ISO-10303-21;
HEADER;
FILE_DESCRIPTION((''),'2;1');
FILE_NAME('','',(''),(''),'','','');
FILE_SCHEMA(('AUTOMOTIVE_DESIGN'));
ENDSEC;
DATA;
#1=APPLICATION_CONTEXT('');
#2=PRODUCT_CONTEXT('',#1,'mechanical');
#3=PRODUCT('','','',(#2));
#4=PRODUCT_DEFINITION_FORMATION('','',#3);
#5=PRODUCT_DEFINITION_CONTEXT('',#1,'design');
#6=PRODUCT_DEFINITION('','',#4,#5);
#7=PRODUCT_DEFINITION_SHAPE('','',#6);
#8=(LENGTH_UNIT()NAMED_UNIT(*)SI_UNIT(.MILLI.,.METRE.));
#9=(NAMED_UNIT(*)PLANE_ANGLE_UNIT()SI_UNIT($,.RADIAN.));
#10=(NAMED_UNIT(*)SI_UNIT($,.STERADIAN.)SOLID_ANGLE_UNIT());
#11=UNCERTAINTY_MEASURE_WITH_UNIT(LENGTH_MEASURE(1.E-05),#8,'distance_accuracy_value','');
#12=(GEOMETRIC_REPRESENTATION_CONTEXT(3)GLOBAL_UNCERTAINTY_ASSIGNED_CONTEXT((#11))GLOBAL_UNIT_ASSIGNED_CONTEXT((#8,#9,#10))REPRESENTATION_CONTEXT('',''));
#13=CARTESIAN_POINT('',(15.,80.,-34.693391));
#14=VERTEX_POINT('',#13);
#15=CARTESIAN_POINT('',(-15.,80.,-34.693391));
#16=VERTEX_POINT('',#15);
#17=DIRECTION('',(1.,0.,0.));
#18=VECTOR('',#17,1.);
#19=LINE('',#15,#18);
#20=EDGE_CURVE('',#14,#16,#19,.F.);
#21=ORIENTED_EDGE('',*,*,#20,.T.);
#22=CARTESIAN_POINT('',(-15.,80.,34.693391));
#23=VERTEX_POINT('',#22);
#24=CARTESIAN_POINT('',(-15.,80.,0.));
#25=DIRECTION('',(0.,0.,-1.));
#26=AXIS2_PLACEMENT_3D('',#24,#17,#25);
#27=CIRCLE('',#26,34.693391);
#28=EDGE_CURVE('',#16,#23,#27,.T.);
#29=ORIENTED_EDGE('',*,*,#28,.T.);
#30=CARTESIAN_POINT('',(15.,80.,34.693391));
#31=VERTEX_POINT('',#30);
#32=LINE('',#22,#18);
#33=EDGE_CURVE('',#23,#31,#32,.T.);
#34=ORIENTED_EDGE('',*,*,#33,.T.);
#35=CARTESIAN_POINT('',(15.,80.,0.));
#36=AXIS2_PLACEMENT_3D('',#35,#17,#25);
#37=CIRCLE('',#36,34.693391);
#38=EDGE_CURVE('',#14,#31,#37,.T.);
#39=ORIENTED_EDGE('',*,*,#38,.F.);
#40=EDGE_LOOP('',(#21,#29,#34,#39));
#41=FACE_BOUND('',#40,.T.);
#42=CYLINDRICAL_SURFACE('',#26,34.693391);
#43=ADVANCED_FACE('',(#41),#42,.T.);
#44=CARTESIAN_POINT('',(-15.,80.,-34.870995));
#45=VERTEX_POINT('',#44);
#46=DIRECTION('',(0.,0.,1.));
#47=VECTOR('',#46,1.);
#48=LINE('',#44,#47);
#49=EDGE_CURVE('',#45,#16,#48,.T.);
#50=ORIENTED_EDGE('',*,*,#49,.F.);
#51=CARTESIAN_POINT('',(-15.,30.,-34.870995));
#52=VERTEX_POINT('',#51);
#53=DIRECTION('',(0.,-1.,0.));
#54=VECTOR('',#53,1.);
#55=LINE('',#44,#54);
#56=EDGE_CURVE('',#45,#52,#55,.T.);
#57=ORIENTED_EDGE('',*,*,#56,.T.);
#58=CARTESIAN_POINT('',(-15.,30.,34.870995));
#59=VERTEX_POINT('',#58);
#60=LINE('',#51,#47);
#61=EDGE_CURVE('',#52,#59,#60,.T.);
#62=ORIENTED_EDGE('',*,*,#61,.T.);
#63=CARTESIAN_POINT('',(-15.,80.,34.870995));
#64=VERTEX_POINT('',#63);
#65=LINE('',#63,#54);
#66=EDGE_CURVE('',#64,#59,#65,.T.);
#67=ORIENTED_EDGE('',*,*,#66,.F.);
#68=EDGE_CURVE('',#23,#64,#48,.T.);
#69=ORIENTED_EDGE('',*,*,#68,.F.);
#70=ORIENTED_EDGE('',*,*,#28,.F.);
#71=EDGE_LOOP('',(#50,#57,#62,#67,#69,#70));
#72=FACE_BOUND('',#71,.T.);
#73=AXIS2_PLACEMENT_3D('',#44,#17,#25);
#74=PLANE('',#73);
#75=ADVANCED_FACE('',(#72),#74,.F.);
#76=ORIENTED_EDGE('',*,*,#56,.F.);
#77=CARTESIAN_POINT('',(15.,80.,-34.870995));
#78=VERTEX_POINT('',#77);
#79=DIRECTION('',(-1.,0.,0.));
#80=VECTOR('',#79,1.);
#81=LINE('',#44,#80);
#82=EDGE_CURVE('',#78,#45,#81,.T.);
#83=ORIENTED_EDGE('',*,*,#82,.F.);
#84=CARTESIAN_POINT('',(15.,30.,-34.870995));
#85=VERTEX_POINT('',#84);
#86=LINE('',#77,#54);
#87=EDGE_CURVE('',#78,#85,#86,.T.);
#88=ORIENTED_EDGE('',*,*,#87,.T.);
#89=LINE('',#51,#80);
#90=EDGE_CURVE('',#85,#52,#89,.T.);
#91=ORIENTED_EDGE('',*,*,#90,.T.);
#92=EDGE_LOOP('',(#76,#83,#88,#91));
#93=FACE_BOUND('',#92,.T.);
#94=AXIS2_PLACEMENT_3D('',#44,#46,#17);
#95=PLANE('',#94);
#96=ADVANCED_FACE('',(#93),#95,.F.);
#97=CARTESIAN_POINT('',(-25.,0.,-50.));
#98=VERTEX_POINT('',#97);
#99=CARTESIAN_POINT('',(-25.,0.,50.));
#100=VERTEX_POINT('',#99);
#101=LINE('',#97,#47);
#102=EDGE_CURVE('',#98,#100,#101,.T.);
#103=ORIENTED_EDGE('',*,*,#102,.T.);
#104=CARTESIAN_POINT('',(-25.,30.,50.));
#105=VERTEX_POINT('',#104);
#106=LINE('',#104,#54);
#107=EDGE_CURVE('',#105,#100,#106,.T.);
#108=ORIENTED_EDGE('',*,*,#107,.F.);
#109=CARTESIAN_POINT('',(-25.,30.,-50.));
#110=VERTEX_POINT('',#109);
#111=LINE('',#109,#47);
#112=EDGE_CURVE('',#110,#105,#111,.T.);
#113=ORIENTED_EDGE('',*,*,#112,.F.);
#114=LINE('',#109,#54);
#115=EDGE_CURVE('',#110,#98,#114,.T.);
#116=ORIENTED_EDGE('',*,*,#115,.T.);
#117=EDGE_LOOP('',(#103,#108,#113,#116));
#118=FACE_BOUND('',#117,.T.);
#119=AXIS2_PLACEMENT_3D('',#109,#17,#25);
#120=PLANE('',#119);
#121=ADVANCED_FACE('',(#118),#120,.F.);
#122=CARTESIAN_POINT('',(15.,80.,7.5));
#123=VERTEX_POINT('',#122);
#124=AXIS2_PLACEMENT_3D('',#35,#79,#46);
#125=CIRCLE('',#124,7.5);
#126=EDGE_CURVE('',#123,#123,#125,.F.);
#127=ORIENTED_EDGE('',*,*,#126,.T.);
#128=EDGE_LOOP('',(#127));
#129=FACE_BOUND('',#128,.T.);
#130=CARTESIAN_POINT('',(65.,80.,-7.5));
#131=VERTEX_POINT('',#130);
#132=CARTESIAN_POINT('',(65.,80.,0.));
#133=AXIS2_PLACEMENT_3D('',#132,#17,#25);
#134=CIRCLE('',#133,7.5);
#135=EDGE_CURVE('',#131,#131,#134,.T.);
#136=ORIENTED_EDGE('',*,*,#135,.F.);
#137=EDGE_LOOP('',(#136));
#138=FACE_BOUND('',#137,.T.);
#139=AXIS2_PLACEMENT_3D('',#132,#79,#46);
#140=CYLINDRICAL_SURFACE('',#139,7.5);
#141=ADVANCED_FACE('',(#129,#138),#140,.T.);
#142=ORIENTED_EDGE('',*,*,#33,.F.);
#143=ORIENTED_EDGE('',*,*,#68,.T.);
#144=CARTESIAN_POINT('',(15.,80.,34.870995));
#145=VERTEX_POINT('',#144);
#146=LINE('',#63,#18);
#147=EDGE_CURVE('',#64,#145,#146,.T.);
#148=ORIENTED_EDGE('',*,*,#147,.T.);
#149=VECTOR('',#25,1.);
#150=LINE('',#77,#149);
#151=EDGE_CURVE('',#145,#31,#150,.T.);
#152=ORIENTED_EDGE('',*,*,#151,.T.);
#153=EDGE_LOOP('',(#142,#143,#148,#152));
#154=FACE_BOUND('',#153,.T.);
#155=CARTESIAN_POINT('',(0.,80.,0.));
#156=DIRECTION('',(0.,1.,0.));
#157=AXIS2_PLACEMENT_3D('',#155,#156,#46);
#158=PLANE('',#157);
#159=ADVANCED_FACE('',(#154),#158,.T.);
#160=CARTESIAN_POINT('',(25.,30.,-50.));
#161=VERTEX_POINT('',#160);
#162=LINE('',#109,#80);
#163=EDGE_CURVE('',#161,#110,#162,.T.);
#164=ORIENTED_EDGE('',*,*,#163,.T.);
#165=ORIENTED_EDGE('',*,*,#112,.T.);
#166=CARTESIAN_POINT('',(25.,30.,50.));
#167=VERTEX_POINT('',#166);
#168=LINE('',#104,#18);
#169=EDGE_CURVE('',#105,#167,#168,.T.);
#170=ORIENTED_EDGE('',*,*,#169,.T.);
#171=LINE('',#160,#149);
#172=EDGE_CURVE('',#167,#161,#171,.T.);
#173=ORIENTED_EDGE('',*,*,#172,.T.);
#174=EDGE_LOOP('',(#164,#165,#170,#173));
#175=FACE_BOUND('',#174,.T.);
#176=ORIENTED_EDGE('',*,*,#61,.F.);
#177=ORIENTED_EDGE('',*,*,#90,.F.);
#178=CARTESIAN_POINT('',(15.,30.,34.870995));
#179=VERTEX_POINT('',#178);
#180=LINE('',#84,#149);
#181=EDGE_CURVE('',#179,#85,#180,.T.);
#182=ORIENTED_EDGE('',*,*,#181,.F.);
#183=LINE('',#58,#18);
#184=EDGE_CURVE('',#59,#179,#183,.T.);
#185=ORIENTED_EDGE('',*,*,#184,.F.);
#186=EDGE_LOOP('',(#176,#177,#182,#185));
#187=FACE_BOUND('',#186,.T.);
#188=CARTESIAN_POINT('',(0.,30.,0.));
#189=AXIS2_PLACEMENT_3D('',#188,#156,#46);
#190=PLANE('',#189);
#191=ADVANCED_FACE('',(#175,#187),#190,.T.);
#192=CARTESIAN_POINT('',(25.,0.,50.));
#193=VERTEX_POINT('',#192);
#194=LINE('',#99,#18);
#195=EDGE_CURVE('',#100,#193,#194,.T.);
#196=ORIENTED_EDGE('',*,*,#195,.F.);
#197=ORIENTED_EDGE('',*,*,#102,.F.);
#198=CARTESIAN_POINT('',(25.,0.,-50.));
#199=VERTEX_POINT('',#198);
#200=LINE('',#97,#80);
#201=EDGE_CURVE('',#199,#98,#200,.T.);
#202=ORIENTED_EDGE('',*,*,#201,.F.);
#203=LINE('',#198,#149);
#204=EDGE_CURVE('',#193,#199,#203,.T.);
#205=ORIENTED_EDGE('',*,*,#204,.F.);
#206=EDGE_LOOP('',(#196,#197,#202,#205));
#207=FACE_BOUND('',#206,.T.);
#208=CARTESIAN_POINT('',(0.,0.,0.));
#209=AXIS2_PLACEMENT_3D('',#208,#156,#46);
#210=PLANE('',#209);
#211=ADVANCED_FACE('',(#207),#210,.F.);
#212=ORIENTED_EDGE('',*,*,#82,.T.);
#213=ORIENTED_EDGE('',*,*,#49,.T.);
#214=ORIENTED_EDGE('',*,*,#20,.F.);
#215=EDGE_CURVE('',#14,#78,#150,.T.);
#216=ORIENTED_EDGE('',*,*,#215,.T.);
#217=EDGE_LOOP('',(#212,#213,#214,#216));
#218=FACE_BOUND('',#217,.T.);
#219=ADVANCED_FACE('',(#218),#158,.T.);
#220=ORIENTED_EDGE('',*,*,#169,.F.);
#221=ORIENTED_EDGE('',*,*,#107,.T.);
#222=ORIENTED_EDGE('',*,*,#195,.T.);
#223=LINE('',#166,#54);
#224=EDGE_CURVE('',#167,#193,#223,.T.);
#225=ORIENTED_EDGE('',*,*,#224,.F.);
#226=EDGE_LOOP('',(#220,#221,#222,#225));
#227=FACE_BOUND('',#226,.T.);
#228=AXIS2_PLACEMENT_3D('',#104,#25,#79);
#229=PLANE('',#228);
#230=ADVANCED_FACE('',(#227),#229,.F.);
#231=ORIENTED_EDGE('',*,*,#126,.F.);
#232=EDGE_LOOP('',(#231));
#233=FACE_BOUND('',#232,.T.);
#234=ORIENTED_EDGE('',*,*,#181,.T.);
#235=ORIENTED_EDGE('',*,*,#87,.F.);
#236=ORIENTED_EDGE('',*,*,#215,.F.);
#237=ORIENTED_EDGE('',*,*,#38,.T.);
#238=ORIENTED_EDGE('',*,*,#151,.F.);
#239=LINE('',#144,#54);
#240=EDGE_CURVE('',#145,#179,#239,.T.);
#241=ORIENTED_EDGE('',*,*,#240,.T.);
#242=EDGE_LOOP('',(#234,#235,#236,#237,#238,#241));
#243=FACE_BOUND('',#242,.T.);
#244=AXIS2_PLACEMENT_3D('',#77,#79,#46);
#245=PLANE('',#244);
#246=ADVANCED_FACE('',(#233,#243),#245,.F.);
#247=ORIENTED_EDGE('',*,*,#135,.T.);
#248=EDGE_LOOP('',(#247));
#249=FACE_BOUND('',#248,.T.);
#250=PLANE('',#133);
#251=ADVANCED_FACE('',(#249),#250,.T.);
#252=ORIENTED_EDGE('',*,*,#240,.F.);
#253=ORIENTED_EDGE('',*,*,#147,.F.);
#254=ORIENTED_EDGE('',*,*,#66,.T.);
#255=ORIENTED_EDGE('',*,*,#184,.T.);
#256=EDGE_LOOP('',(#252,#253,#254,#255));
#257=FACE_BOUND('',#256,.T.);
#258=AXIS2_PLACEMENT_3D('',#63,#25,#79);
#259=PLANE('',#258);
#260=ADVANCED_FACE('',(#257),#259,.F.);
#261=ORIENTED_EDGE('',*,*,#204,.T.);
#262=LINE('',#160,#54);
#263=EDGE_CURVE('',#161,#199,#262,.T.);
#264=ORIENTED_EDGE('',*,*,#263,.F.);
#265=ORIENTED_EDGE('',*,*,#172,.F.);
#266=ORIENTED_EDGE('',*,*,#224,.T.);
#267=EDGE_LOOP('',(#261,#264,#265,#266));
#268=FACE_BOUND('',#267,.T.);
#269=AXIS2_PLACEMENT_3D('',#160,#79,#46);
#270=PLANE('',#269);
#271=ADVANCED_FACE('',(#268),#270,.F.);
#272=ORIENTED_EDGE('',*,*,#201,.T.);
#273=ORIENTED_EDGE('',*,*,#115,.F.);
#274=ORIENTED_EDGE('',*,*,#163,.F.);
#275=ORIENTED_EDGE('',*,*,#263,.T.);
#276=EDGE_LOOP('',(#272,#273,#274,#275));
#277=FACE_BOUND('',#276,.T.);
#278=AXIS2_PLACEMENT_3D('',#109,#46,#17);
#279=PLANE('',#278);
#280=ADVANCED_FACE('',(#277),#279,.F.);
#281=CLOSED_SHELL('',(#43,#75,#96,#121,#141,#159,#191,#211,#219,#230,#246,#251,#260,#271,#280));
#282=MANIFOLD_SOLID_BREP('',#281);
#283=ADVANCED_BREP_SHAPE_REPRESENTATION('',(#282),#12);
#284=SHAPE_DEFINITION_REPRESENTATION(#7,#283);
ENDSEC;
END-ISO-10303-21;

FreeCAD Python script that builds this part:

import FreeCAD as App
import Part
import Sketcher

V = App.Vector
Q = App.Units.Quantity

doc = App.newDocument("Part")
body = doc.addObject("PartDesign::Body", "Body")

# Sketch on XZ plane
sketch1 = body.newObject("Sketcher::SketchObject", "Sketch")
sketch1.AttachmentSupport = (doc.getObject("XZ_Plane"), [""])
sketch1.MapMode = "FlatFace"
sketch1.addGeometry(Part.LineSegment(V(-25, -50, 0), V(-25, 50, 0)), False)
sketch1.addGeometry(Part.LineSegment(V(-25, 50, 0), V(25, 50, 0)), False)
sketch1.addGeometry(Part.LineSegment(V(25, 50, 0), V(25, -50, 0)), False)
sketch1.addGeometry(Part.LineSegment(V(25, -50, 0), V(-25, -50, 0)), False)
sketch1.addConstraint(Sketcher.Constraint("Coincident", 0, 2, 1, 1))
sketch1.addConstraint(Sketcher.Constraint("Coincident", 1, 2, 2, 1))
sketch1.addConstraint(Sketcher.Constraint("Coincident", 2, 2, 3, 1))
sketch1.addConstraint(Sketcher.Constraint("Coincident", 3, 2, 0, 1))
sketch1.addConstraint(Sketcher.Constraint("Vertical", 0))
sketch1.addConstraint(Sketcher.Constraint("Horizontal", 1))
sketch1.addConstraint(Sketcher.Constraint("Vertical", 2))
sketch1.addConstraint(Sketcher.Constraint("Horizontal", 3))
sketch1.addConstraint(Sketcher.Constraint("Symmetric", 0, 2, 2, 2, -1, 1))
sketch1.addConstraint(Sketcher.Constraint("DistanceX", 1, 1, 1, 2, Q("50 mm")))
sketch1.addConstraint(Sketcher.Constraint("DistanceY", 0, 1, 0, 2, Q("100 mm")))
pad1 = body.newObject("PartDesign::Pad", "Pad")
pad1.Profile = sketch1
pad1.Length = 30
pad1.Reversed = True

# Sketch on XZ plane
sketch2 = body.newObject("Sketcher::SketchObject", "Sketch001")
sketch2.AttachmentSupport = (doc.getObject("XZ_Plane"), [""])
sketch2.MapMode = "FlatFace"
sketch2.AttachmentOffset = App.Placement(V(0, 0, -30), App.Rotation())
sketch2.addGeometry(Part.LineSegment(V(-15, -34.870995, 0), V(-15, 34.870995, 0)), False)
sketch2.addGeometry(Part.LineSegment(V(-15, 34.870995, 0), V(15, 34.870995, 0)), False)
sketch2.addGeometry(Part.LineSegment(V(15, 34.870995, 0), V(15, -34.870995, 0)), False)
sketch2.addGeometry(Part.LineSegment(V(15, -34.870995, 0), V(-15, -34.870995, 0)), False)
sketch2.addConstraint(Sketcher.Constraint("Coincident", 0, 2, 1, 1))
sketch2.addConstraint(Sketcher.Constraint("Coincident", 1, 2, 2, 1))
sketch2.addConstraint(Sketcher.Constraint("Coincident", 2, 2, 3, 1))
sketch2.addConstraint(Sketcher.Constraint("Coincident", 3, 2, 0, 1))
sketch2.addConstraint(Sketcher.Constraint("Vertical", 0))
sketch2.addConstraint(Sketcher.Constraint("Horizontal", 1))
sketch2.addConstraint(Sketcher.Constraint("Vertical", 2))
sketch2.addConstraint(Sketcher.Constraint("Horizontal", 3))
sketch2.addConstraint(Sketcher.Constraint("Symmetric", 0, 2, 2, 2, -1, 1))
sketch2.addConstraint(Sketcher.Constraint("DistanceX", 1, 1, 1, 2, Q("30 mm")))
sketch2.addConstraint(Sketcher.Constraint("DistanceY", 0, 1, 0, 2, Q("69.74199 mm")))
pad2 = body.newObject("PartDesign::Pad", "Pad001")
pad2.Profile = sketch2
pad2.Length = 50
pad2.Reversed = True

# Sketch on YZ plane
sketch3 = body.newObject("Sketcher::SketchObject", "Sketch002")
sketch3.AttachmentSupport = (doc.getObject("YZ_Plane"), [""])
sketch3.MapMode = "FlatFace"
sketch3.AttachmentOffset = App.Placement(V(0, 0, 15), App.Rotation())
sketch3.addGeometry(Part.Circle(V(80, 0, 0), V(0, 0, 1), 34.693391), False)
sketch3.addConstraint(Sketcher.Constraint("PointOnObject", 0, 3, -1))
sketch3.addConstraint(Sketcher.Constraint("DistanceX", -1, 1, 0, 3, Q("80 mm")))
sketch3.addConstraint(Sketcher.Constraint("Diameter", 0, Q("69.386782 mm")))
pad3 = body.newObject("PartDesign::Pad", "Pad002")
pad3.Profile = sketch3
pad3.Length = 30
pad3.Reversed = True

# Sketch on YZ plane
sketch4 = body.newObject("Sketcher::SketchObject", "Sketch003")
sketch4.AttachmentSupport = (doc.getObject("YZ_Plane"), [""])
sketch4.MapMode = "FlatFace"
sketch4.AttachmentOffset = App.Placement(V(0, 0, 15), App.Rotation())
sketch4.addGeometry(Part.Circle(V(80, 0, 0), V(0, 0, 1), 7.5), False)
sketch4.addConstraint(Sketcher.Constraint("PointOnObject", 0, 3, -1))
sketch4.addConstraint(Sketcher.Constraint("Diameter", 0, Q("15 mm")))
sketch4.addConstraint(Sketcher.Constraint("DistanceX", -1, 1, 0, 3, Q("80 mm")))
pad4 = body.newObject("PartDesign::Pad", "Pad003")
pad4.Profile = sketch4
pad4.Length = 50

doc.recompute()
